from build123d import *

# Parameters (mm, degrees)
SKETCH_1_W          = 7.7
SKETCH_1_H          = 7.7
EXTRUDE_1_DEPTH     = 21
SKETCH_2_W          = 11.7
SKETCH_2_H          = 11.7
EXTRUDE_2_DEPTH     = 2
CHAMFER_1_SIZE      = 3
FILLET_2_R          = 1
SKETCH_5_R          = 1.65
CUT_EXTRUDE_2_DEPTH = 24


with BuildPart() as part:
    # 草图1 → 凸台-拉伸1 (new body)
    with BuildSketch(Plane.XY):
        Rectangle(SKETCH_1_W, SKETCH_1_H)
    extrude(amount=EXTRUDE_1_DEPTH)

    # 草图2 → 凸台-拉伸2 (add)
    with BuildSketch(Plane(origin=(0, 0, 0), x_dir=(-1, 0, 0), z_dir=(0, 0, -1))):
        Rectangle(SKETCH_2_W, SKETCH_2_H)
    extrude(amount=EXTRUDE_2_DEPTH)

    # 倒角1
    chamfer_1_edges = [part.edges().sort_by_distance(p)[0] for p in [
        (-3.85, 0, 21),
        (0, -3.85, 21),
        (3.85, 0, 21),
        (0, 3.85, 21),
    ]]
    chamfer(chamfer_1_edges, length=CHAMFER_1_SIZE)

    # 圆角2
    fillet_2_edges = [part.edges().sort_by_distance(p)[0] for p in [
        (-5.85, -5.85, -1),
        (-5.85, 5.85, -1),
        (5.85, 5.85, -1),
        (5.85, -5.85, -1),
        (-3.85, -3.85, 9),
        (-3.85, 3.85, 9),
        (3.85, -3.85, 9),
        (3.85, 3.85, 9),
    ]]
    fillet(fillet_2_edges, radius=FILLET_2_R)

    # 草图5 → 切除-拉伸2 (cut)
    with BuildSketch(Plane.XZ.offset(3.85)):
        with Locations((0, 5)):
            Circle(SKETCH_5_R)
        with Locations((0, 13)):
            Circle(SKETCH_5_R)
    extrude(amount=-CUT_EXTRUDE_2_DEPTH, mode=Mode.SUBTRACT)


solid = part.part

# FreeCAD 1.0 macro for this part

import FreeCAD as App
import Part
import Sketcher

V = App.Vector


def edges_at(feature, points):
    """Names of the edges that pass closest to the given points."""
    edges = feature.Shape.Edges
    near = lambda p: min(range(len(edges)), key=lambda i: edges[i].distToShape(Part.Vertex(*p))[0])
    return sorted({f"Edge{near(p) + 1}" for p in points})


def add_polygon(sketch, points):
    """Adds a closed chain of lines whose ends are joined by coincident constraints."""
    first, n = sketch.GeometryCount, len(points)
    for a, b in zip(points, points[1:] + points[:1]):
        sketch.addGeometry(Part.LineSegment(App.Vector(*a, 0), App.Vector(*b, 0)), False)
    for i in range(n):
        sketch.addConstraint(Sketcher.Constraint("Coincident", first + i, 2, first + (i + 1) % n, 1))

doc = App.newDocument("Part")
body = doc.addObject("PartDesign::Body", "Body")

# Sketch on XY plane
sketch1 = body.newObject("Sketcher::SketchObject", "Sketch")
sketch1.AttachmentSupport = (doc.getObject("XY_Plane"), [""])
sketch1.MapMode = "FlatFace"
add_polygon(sketch1, [(-4, 4), (-4, -4), (4, -4), (4, 4)])  # lines 0-3
sketch1.addConstraint(Sketcher.Constraint("Vertical", 0))
sketch1.addConstraint(Sketcher.Constraint("Horizontal", 1))
sketch1.addConstraint(Sketcher.Constraint("Vertical", 2))
sketch1.addConstraint(Sketcher.Constraint("Horizontal", 3))
sketch1.addConstraint(Sketcher.Constraint("Symmetric", 0, 2, 2, 2, -1, 1))
sketch1.addConstraint(Sketcher.Constraint("Equal", 3, 0))
sketch1.addConstraint(Sketcher.Constraint("DistanceX", 1, 1, 1, 2, 7.7))
pad1 = body.newObject("PartDesign::Pad", "Pad")
pad1.Profile = sketch1
pad1.Length = 21

# Sketch on XY plane
sketch2 = body.newObject("Sketcher::SketchObject", "Sketch001")
sketch2.AttachmentSupport = (doc.getObject("XY_Plane"), [""])
sketch2.MapMode = "FlatFace"
add_polygon(sketch2, [(6, 6), (6, -6), (-6, -6), (-6, 6)])  # lines 0-3
sketch2.addConstraint(Sketcher.Constraint("Vertical", 0))
sketch2.addConstraint(Sketcher.Constraint("Horizontal", 1))
sketch2.addConstraint(Sketcher.Constraint("Vertical", 2))
sketch2.addConstraint(Sketcher.Constraint("Horizontal", 3))
sketch2.addConstraint(Sketcher.Constraint("Symmetric", 0, 2, 2, 2, -1, 1))
sketch2.addConstraint(Sketcher.Constraint("Equal", 3, 0))
sketch2.addConstraint(Sketcher.Constraint("DistanceX", 1, 2, 1, 1, 11.7))
pad2 = body.newObject("PartDesign::Pad", "Pad001")
pad2.Profile = sketch2
pad2.Length = 2
pad2.Reversed = True
doc.recompute()

chamfer = body.newObject("PartDesign::Chamfer", "Chamfer")
chamfer.Base = (pad2, edges_at(pad2, [
    (-3.85, 0, 21),
    (0, -3.85, 21),
    (3.85, 0, 21),
    (0, 3.85, 21),
]))
chamfer.Size = 3
doc.recompute()

fillet = body.newObject("PartDesign::Fillet", "Fillet")
fillet.Base = (chamfer, edges_at(chamfer, [
    (-5.85, -5.85, -1),
    (-5.85, 5.85, -1),
    (5.85, 5.85, -1),
    (5.85, -5.85, -1),
    (-3.85, -3.85, 9),
    (-3.85, 3.85, 9),
    (3.85, -3.85, 9),
    (3.85, 3.85, 9),
]))
fillet.Radius = 1

# Sketch on XZ plane
sketch3 = body.newObject("Sketcher::SketchObject", "Sketch002")
sketch3.AttachmentSupport = (doc.getObject("XZ_Plane"), [""])
sketch3.MapMode = "FlatFace"
sketch3.AttachmentOffset = App.Placement(V(0, 0, 3.85), App.Rotation())
sketch3.addGeometry(Part.Circle(V(0, 5, 0), V(0, 0, 1), 1.6), False)
sketch3.addGeometry(Part.Circle(V(0, 13, 0), V(0, 0, 1), 1.6), False)
sketch3.addConstraint(Sketcher.Constraint("Equal", 0, 1))
sketch3.addConstraint(Sketcher.Constraint("PointOnObject", 0, 3, -2))
sketch3.addConstraint(Sketcher.Constraint("PointOnObject", 1, 3, -2))
sketch3.addConstraint(Sketcher.Constraint("Diameter", 0, 3.3))
sketch3.addConstraint(Sketcher.Constraint("DistanceY", -1, 1, 0, 3, 5.0))
sketch3.addConstraint(Sketcher.Constraint("DistanceY", -1, 1, 1, 3, 13.0))
pocket1 = body.newObject("PartDesign::Pocket", "Pocket")
pocket1.Profile = sketch3
pocket1.Length = 24

doc.recompute()
